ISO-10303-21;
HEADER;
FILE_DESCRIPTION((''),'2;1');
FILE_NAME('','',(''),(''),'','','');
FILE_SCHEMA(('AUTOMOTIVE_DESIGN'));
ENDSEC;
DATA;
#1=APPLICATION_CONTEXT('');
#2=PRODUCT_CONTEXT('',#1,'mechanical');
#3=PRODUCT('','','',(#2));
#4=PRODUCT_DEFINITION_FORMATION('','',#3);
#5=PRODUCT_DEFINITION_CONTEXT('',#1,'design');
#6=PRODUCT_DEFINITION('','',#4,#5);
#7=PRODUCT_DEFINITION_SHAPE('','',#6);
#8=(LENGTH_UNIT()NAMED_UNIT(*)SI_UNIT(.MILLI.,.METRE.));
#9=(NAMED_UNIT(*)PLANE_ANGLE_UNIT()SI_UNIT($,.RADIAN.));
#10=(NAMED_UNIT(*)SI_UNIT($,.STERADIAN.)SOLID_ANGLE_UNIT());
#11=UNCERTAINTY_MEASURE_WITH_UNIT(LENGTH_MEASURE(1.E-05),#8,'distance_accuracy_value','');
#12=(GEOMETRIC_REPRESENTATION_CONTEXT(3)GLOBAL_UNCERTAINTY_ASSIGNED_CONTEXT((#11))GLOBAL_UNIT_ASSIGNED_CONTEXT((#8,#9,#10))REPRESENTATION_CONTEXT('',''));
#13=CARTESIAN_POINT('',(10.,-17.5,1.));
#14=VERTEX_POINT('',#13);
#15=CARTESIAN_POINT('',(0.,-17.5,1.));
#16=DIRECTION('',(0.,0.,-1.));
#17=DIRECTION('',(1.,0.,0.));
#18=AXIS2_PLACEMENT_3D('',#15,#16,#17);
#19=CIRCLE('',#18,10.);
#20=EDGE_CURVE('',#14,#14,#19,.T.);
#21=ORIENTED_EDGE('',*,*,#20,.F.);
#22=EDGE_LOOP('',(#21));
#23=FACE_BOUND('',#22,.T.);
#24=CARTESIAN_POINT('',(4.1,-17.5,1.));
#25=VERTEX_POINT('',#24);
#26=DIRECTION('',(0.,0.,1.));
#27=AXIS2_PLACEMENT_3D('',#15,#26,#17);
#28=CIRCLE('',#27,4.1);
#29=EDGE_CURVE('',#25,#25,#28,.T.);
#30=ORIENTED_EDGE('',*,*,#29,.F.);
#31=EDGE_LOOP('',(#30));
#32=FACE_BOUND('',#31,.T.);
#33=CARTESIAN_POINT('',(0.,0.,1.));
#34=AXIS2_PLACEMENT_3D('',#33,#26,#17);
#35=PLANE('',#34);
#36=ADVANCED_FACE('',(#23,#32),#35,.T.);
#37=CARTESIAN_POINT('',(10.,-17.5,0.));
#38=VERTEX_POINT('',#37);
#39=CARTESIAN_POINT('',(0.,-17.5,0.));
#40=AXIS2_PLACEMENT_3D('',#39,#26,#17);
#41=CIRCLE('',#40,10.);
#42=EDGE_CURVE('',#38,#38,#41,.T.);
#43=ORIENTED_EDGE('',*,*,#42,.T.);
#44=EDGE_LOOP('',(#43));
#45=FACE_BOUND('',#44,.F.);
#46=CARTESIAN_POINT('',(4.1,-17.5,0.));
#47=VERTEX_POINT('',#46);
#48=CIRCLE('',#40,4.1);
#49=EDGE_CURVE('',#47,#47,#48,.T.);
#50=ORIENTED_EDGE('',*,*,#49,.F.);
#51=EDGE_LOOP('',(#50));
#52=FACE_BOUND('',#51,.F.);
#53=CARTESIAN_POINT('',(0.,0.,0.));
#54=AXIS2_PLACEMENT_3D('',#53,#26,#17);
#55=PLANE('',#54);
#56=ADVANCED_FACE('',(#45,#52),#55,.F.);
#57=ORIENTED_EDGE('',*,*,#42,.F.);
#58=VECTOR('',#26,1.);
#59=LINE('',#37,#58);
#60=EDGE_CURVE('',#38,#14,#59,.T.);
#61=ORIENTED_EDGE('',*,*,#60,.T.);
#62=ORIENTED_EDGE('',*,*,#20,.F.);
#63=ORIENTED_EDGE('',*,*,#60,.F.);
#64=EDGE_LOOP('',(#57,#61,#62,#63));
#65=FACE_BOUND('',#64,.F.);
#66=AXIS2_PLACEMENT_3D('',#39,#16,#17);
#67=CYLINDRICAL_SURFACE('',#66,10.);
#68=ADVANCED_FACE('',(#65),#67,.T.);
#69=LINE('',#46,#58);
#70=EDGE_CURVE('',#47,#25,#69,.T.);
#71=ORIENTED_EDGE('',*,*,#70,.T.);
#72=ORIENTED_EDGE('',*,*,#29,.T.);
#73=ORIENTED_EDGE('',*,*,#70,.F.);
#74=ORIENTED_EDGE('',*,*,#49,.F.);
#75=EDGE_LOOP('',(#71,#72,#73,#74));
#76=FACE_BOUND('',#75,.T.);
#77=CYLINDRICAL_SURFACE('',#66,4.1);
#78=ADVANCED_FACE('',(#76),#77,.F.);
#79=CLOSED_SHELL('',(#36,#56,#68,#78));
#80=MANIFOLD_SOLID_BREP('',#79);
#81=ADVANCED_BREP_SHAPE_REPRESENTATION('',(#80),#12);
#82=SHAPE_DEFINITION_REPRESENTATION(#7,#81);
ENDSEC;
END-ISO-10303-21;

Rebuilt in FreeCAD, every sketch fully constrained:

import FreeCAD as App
import Part
import Sketcher

doc = App.newDocument("Part")
body = doc.addObject("PartDesign::Body", "Body")

# Sketch on XY plane
sketch1 = body.newObject("Sketcher::SketchObject", "Sketch")
sketch1.AttachmentSupport = (doc.getObject("XY_Plane"), [""])
sketch1.MapMode = "FlatFace"
sketch1.addGeometry(Part.Circle(App.Vector(0, -17.5, 0), App.Vector(0, 0, 1), 10), False)
sketch1.addGeometry(Part.Circle(App.Vector(0, -17.5, 0), App.Vector(0, 0, 1), 4.1), False)
sketch1.addConstraint(Sketcher.Constraint("Coincident", 1, 3, 0, 3))
sketch1.addConstraint(Sketcher.Constraint("PointOnObject", 0, 3, -2))
sketch1.addConstraint(Sketcher.Constraint("Diameter", 0, 20.0))
sketch1.addConstraint(Sketcher.Constraint("Diameter", 1, 8.2))
sketch1.addConstraint(Sketcher.Constraint("DistanceY", 0, 3, -1, 1, 17.5))
pad1 = body.newObject("PartDesign::Pad", "Pad")
pad1.Profile = sketch1
pad1.Length = 1

doc.recompute()
